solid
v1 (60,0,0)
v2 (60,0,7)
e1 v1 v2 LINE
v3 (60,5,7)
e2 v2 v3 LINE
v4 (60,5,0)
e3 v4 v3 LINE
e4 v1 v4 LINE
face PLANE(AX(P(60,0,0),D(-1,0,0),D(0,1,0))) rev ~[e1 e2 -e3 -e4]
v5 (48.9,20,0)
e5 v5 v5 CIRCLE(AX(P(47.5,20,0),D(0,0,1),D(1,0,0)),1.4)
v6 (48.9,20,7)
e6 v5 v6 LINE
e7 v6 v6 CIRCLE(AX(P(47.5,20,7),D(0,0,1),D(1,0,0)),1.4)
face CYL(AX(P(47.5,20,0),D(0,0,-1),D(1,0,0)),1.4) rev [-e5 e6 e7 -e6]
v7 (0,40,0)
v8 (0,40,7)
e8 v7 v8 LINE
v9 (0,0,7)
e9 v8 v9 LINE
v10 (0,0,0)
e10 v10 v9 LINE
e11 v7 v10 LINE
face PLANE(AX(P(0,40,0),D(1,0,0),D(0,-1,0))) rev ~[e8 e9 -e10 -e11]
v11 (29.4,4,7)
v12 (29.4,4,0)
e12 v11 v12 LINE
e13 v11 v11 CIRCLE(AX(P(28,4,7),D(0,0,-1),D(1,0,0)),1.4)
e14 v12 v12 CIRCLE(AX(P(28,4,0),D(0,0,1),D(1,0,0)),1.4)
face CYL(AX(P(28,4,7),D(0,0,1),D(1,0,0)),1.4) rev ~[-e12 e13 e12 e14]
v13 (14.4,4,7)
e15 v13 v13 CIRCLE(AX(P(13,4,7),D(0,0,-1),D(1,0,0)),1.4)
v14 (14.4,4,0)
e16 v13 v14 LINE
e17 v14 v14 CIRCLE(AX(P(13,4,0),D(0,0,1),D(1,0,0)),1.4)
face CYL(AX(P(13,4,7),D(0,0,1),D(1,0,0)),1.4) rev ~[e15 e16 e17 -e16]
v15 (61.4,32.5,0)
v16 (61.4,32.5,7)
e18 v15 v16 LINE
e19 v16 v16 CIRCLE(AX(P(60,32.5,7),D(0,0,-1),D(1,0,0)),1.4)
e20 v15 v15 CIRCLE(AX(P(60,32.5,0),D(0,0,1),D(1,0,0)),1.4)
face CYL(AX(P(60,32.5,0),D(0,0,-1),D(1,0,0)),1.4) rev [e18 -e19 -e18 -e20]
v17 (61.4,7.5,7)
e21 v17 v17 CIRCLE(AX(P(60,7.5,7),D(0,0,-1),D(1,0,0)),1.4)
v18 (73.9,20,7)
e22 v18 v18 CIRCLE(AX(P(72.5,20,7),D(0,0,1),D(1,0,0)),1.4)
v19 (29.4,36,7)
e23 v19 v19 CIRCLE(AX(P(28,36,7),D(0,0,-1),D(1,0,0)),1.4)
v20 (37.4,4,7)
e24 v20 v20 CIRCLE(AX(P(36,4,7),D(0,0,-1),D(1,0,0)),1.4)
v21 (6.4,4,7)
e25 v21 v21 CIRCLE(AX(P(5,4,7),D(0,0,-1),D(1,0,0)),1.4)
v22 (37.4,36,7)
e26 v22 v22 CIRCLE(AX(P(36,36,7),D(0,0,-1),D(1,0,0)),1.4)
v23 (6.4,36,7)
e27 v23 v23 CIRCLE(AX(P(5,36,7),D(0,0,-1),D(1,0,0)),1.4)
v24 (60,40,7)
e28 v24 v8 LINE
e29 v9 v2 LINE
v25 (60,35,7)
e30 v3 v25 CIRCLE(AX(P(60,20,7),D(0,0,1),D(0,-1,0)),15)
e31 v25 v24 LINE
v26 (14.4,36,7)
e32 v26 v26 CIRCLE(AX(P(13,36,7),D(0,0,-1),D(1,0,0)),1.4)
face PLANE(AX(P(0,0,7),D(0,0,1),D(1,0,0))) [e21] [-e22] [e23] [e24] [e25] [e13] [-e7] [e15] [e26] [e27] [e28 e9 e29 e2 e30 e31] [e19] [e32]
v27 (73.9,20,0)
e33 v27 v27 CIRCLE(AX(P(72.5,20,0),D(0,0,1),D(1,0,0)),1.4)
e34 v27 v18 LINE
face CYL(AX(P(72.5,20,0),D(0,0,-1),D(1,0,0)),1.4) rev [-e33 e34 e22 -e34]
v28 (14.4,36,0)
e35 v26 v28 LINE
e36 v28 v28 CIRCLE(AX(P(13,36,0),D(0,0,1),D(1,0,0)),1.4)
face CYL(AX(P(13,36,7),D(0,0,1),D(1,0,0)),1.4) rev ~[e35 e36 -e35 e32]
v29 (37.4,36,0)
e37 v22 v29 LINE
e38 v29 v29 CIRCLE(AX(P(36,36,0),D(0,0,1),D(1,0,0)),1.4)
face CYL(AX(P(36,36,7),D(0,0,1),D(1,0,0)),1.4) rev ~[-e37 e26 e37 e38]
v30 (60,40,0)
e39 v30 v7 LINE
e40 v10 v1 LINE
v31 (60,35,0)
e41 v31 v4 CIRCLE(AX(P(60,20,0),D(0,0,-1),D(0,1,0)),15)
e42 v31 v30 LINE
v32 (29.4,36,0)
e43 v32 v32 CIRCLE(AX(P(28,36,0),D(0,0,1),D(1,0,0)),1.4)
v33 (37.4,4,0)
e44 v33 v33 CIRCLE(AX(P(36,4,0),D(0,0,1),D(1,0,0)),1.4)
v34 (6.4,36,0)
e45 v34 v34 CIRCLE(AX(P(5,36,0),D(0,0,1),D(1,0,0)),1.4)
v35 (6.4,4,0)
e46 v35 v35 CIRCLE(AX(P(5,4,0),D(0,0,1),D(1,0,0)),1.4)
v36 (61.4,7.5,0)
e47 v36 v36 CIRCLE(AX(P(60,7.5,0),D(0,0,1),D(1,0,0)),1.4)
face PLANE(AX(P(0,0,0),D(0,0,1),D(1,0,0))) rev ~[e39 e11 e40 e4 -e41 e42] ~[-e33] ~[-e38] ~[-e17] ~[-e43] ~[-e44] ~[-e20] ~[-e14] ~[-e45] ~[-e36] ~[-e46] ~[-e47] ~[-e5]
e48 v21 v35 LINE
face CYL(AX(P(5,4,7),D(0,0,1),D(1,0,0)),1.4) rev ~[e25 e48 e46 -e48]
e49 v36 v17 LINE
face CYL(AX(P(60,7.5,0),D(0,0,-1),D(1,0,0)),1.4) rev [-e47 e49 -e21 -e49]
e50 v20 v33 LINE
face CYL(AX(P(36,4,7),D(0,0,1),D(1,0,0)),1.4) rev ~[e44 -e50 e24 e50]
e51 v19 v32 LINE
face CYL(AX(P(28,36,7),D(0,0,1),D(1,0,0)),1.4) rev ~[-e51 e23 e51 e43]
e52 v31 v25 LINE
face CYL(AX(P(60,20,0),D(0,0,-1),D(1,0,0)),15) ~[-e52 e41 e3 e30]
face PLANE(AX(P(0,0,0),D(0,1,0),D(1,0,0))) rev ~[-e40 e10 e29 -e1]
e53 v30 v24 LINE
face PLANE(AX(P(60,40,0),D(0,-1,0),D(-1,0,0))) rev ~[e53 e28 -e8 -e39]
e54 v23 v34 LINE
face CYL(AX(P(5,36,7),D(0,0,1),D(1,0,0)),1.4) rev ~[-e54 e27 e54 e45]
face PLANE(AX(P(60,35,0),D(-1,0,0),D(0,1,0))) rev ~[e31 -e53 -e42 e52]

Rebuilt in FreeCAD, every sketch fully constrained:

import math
import FreeCAD as App
import Part
import Sketcher
from FreeCAD import Vector

doc = App.newDocument("Part")
body = doc.addObject("PartDesign::Body", "Body")

# Sketch on XY plane
sketch1 = body.newObject("Sketcher::SketchObject", "Sketch")
sketch1.AttachmentSupport = (doc.getObject("XY_Plane"), [""])
sketch1.MapMode = "FlatFace"
sketch1.addGeometry([
    Part.LineSegment(Vector(0, 40, 0), Vector(0, 0, 0)),  # 0
    Part.LineSegment(Vector(0, 0, 0), Vector(60, 0, 0)),  # 1
    Part.LineSegment(Vector(60, 0, 0), Vector(60, 5, 0)),  # 2
    Part.ArcOfCircle(Part.Circle(Vector(60, 20, 0), Vector(0, 0, 1), 15), math.radians(-90), math.radians(90)),  # 3
    Part.LineSegment(Vector(60, 35, 0), Vector(60, 40, 0)),  # 4
    Part.LineSegment(Vector(60, 40, 0), Vector(0, 40, 0)),  # 5
    Part.Circle(Vector(47.5, 20, 0), Vector(0, 0, 1), 1.4),  # 6
    Part.Circle(Vector(60, 32.5, 0), Vector(0, 0, 1), 1.4),  # 7
    Part.Circle(Vector(60, 7.5, 0), Vector(0, 0, 1), 1.4),  # 8
    Part.Circle(Vector(72.5, 20, 0), Vector(0, 0, 1), 1.4),  # 9
], False)
sketch1.addConstraint([
    Sketcher.Constraint("Coincident", 0, 2, 1, 1),
    Sketcher.Constraint("Coincident", 1, 2, 2, 1),
    Sketcher.Constraint("Coincident", 2, 2, 3, 1),
    Sketcher.Constraint("Coincident", 3, 2, 4, 1),
    Sketcher.Constraint("Coincident", 4, 2, 5, 1),
    Sketcher.Constraint("Coincident", 5, 2, 0, 1),
    Sketcher.Constraint("Vertical", 0),
    Sketcher.Constraint("Horizontal", 1),
    Sketcher.Constraint("Vertical", 2),
    Sketcher.Constraint("Vertical", 4),
    Sketcher.Constraint("Horizontal", 5),
    Sketcher.Constraint("Coincident", 0, 2, -1, 1),
    Sketcher.Constraint("Equal", 6, 7),
    Sketcher.Constraint("Equal", 7, 8),
    Sketcher.Constraint("Equal", 8, 9),
    Sketcher.Constraint("Horizontal", 3, 3, 6, 3),
    Sketcher.Constraint("Horizontal", 6, 3, 9, 3),
    Sketcher.Constraint("Vertical", 3, 3, 7, 3),
    Sketcher.Constraint("Vertical", 7, 3, 8, 3),
    Sketcher.Constraint("Vertical", 8, 3, 1, 2),
    Sketcher.Constraint("Vertical", 2, 2, 3, 2),
    Sketcher.Constraint("Equal", 2, 4),
    Sketcher.Constraint("Radius", 3, 15.0),
    Sketcher.Constraint("Diameter", 6, 2.8),
    Sketcher.Constraint("DistanceX", 1, 1, 1, 2, 60.0),
    Sketcher.Constraint("DistanceY", 0, 2, 0, 1, 40.0),
    Sketcher.Constraint("DistanceX", 6, 3, 3, 3, 12.5),
    Sketcher.Constraint("DistanceY", 3, 3, 7, 3, 12.5),
    Sketcher.Constraint("DistanceY", 8, 3, 3, 3, 12.5),
    Sketcher.Constraint("DistanceX", 3, 3, 9, 3, 12.5),
])
pad1 = body.newObject("PartDesign::Pad", "Pad")
pad1.Profile = sketch1
pad1.Length = 7

# Sketch on XY plane
sketch2 = body.newObject("Sketcher::SketchObject", "Sketch001")
sketch2.AttachmentSupport = (doc.getObject("XY_Plane"), [""])
sketch2.MapMode = "FlatFace"
sketch2.AttachmentOffset = App.Placement(Vector(0, 0, 7), App.Rotation())
sketch2.addGeometry([
    Part.Circle(Vector(13, 36, 0), Vector(0, 0, 1), 1.4),
    Part.Circle(Vector(36, 36, 0), Vector(0, 0, 1), 1.4),
    Part.Circle(Vector(13, 4, 0), Vector(0, 0, 1), 1.4),
    Part.Circle(Vector(36, 4, 0), Vector(0, 0, 1), 1.4),
], False)
sketch2.addConstraint([
    Sketcher.Constraint("Equal", 0, 1),
    Sketcher.Constraint("Equal", 1, 2),
    Sketcher.Constraint("Equal", 2, 3),
    Sketcher.Constraint("Horizontal", 0, 3, 1, 3),
    Sketcher.Constraint("Horizontal", 2, 3, 3, 3),
    Sketcher.Constraint("Vertical", 0, 3, 2, 3),
    Sketcher.Constraint("Vertical", 1, 3, 3, 3),
    Sketcher.Constraint("Diameter", 0, 2.8),
    Sketcher.Constraint("DistanceX", -1, 1, 0, 3, 13.0),
    Sketcher.Constraint("DistanceX", 0, 3, 1, 3, 23.0),
    Sketcher.Constraint("DistanceY", 2, 3, 0, 3, 32.0),
    Sketcher.Constraint("DistanceY", -1, 1, 0, 3, 36.0),
])
pocket1 = body.newObject("PartDesign::Pocket", "Pocket")
pocket1.Profile = sketch2
pocket1.Type = "ThroughAll"

# Sketch on XY plane
sketch3 = body.newObject("Sketcher::SketchObject", "Sketch002")
sketch3.AttachmentSupport = (doc.getObject("XY_Plane"), [""])
sketch3.MapMode = "FlatFace"
sketch3.AttachmentOffset = App.Placement(Vector(0, 0, 7), App.Rotation())
sketch3.addGeometry([
    Part.Circle(Vector(5, 36, 0), Vector(0, 0, 1), 1.4),
    Part.Circle(Vector(28, 36, 0), Vector(0, 0, 1), 1.4),
    Part.Circle(Vector(5, 4, 0), Vector(0, 0, 1), 1.4),
    Part.Circle(Vector(28, 4, 0), Vector(0, 0, 1), 1.4),
], False)
sketch3.addConstraint([
    Sketcher.Constraint("Equal", 0, 1),
    Sketcher.Constraint("Equal", 1, 2),
    Sketcher.Constraint("Equal", 2, 3),
    Sketcher.Constraint("Horizontal", 0, 3, 1, 3),
    Sketcher.Constraint("Horizontal", 2, 3, 3, 3),
    Sketcher.Constraint("Vertical", 0, 3, 2, 3),
    Sketcher.Constraint("Vertical", 1, 3, 3, 3),
    Sketcher.Constraint("Diameter", 0, 2.8),
    Sketcher.Constraint("DistanceX", 0, 3, 1, 3, 23.0),
    Sketcher.Constraint("DistanceY", 2, 3, 0, 3, 32.0),
    Sketcher.Constraint("DistanceX", -1, 1, 0, 3, 5.0),
    Sketcher.Constraint("DistanceY", -1, 1, 0, 3, 36.0),
])
pocket2 = body.newObject("PartDesign::Pocket", "Pocket001")
pocket2.Profile = sketch3
pocket2.Type = "ThroughAll"

doc.recompute()
